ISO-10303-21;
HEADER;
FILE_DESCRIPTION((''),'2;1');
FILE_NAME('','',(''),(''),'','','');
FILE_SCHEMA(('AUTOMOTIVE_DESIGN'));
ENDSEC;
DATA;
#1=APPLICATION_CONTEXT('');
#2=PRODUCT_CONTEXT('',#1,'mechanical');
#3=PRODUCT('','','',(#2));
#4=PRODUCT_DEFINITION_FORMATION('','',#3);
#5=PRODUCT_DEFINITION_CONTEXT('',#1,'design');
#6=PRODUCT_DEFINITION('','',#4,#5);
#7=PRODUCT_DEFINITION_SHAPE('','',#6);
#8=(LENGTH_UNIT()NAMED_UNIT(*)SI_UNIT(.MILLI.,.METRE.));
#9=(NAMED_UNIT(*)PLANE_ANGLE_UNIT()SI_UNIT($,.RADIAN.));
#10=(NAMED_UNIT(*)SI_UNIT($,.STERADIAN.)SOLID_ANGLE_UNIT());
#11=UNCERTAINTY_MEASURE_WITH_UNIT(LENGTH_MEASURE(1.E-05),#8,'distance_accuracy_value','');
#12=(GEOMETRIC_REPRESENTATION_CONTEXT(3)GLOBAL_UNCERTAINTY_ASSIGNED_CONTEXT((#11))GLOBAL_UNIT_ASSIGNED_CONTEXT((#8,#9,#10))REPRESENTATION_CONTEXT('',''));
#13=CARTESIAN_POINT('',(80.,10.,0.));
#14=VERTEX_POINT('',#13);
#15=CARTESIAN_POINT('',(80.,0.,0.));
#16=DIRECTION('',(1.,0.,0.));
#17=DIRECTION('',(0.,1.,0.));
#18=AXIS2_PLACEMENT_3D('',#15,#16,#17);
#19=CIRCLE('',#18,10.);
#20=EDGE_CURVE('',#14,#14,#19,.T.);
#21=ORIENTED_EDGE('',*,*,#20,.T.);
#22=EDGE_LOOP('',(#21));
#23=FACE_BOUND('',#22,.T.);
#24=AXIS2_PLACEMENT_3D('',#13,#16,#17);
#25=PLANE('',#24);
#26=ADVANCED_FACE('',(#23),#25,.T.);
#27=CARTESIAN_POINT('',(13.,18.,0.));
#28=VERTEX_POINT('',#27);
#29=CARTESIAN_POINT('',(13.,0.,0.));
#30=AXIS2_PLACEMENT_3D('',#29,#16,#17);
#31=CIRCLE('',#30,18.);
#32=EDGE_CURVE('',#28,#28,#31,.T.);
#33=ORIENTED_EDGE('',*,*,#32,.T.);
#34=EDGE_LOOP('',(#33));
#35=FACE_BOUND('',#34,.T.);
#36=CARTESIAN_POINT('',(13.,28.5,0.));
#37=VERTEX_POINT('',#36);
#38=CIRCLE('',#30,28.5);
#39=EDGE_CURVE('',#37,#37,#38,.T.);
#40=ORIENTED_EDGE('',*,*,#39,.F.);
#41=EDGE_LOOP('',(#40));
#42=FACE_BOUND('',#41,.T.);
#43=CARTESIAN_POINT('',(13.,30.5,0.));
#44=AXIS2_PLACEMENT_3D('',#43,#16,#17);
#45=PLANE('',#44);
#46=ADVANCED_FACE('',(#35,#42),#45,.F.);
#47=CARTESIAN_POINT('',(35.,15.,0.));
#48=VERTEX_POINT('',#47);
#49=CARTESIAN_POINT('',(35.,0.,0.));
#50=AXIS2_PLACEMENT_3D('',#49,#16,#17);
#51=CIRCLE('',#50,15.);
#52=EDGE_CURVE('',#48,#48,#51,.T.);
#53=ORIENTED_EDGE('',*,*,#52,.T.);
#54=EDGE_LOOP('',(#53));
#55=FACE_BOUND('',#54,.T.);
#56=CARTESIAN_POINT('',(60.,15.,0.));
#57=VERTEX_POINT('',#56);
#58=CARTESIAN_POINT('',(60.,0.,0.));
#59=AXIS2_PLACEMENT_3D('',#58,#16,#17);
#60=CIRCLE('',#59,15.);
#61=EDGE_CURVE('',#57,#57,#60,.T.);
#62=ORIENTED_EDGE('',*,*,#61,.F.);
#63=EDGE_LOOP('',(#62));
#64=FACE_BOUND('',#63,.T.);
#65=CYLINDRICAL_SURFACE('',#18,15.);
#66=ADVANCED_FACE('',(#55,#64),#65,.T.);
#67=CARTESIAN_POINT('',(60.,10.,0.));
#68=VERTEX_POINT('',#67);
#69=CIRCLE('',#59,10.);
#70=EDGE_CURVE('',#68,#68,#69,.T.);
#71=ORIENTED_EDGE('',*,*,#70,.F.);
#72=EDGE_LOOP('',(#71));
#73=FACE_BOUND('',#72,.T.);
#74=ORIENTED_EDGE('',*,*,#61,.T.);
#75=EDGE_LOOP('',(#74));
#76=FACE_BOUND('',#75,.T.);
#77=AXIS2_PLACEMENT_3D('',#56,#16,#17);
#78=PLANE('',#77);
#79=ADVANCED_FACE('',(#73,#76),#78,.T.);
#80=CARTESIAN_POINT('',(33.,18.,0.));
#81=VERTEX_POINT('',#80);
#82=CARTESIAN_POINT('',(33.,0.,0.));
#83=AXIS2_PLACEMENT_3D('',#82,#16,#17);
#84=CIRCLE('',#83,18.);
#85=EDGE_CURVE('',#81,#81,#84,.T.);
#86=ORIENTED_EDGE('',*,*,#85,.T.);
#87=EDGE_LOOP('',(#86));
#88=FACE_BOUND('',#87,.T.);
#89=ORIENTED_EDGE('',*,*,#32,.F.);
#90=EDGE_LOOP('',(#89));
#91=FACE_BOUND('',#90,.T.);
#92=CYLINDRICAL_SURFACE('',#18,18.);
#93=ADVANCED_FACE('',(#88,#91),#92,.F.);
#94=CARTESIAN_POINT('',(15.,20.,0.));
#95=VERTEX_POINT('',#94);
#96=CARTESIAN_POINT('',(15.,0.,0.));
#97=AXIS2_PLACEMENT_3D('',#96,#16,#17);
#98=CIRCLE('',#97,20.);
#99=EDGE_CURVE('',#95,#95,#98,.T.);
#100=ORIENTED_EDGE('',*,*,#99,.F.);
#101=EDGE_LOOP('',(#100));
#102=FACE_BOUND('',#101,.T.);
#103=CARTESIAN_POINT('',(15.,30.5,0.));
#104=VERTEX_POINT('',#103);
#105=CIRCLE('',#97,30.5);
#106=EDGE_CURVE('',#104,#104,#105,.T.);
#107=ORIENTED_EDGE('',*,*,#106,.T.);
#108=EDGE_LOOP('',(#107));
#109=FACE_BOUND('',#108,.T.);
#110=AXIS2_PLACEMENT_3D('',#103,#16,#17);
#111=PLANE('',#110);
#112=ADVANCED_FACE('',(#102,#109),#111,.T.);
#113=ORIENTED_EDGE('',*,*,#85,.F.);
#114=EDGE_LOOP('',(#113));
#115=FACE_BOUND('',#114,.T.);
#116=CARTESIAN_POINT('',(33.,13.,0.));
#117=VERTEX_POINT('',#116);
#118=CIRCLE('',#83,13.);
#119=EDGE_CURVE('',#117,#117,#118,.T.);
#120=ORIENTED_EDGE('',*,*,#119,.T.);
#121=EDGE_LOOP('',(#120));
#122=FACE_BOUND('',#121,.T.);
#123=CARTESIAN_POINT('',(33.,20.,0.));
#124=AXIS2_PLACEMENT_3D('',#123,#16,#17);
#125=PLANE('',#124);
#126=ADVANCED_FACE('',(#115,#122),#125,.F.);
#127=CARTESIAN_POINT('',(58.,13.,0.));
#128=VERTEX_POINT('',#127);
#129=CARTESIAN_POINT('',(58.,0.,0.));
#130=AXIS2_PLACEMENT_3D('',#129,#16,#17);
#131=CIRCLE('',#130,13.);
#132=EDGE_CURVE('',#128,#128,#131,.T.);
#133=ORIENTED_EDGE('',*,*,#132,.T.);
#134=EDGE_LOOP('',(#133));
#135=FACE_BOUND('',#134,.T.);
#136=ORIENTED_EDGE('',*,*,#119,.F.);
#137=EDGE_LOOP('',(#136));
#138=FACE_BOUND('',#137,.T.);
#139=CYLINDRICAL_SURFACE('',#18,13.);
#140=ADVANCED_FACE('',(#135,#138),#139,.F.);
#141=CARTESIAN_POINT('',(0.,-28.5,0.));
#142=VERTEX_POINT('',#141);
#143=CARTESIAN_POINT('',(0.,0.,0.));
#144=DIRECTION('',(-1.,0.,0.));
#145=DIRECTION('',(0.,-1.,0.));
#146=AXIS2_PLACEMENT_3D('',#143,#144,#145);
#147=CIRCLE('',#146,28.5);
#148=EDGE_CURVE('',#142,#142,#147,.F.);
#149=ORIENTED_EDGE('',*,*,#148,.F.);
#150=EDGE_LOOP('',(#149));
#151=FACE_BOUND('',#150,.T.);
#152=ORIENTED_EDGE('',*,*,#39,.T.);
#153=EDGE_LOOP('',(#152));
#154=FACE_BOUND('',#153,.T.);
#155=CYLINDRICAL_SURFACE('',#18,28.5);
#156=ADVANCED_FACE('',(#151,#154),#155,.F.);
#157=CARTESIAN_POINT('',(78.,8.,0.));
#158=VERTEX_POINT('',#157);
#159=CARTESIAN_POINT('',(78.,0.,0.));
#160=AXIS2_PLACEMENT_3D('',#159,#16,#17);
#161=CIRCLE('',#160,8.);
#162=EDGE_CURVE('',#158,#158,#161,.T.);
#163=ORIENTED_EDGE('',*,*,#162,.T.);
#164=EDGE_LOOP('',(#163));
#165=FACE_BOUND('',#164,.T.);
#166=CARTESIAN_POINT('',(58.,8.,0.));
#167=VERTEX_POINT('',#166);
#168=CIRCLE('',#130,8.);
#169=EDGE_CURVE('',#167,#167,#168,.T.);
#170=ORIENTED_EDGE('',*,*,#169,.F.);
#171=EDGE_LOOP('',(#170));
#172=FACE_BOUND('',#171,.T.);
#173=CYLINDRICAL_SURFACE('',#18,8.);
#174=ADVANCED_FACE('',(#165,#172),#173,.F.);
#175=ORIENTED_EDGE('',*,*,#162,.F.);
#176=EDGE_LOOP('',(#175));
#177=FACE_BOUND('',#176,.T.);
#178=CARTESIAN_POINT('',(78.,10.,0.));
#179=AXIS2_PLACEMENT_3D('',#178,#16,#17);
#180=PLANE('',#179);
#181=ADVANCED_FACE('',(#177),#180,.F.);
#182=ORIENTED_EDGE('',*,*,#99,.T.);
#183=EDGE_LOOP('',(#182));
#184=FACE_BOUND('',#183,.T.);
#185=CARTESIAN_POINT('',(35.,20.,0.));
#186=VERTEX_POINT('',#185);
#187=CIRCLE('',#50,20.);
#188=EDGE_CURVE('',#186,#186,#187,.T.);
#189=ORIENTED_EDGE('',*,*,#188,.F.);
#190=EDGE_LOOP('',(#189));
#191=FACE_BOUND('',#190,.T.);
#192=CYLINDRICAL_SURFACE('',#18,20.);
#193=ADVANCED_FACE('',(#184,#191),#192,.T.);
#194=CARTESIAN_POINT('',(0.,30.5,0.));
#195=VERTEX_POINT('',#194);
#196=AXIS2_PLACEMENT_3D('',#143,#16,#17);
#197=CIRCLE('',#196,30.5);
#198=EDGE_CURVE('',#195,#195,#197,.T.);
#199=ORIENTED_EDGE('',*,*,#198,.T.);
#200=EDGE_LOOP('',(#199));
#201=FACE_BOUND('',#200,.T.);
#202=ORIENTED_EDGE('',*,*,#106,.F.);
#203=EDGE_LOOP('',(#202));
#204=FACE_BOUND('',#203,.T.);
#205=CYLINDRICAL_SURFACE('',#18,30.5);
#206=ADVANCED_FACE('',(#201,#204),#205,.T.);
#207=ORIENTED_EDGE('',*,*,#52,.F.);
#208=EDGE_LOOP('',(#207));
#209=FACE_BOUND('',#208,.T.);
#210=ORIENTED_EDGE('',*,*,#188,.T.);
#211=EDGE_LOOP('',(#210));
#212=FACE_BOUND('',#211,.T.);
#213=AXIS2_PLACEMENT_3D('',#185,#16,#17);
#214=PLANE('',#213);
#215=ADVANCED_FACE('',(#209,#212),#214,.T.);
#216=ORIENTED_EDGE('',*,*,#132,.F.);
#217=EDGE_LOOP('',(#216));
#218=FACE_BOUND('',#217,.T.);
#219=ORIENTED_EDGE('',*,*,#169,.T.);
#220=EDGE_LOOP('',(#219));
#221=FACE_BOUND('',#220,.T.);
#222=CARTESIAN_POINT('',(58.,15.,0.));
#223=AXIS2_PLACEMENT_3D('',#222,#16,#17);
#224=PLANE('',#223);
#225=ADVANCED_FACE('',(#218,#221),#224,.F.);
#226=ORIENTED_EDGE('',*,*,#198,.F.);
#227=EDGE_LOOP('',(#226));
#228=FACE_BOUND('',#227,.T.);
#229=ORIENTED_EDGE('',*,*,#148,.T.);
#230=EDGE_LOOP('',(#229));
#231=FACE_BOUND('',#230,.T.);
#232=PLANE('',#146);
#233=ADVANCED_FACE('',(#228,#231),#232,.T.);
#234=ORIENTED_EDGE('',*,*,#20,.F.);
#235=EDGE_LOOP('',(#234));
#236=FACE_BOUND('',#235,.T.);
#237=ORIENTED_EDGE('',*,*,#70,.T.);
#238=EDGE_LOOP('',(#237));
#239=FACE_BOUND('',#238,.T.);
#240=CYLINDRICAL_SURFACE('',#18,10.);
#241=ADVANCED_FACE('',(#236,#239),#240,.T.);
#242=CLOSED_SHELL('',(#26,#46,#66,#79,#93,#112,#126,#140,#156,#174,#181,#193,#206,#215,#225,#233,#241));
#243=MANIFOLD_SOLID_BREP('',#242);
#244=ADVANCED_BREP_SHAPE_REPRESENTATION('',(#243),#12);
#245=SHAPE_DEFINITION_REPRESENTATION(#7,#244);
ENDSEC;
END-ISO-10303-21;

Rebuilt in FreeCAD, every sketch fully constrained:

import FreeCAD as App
import Part
import Sketcher
from FreeCAD import Vector
Q = App.Units.Quantity


def faces_at(feature, points):
    """Names of the faces that lie closest to the given points."""
    faces = feature.Shape.Faces
    near = lambda p: min(range(len(faces)), key=lambda i: faces[i].distToShape(Part.Vertex(*p))[0])
    return sorted({f"Face{near(p) + 1}" for p in points})

doc = App.newDocument("Part")
body = doc.addObject("PartDesign::Body", "Body")

# Sketch on XY plane
sketch1 = body.newObject("Sketcher::SketchObject", "Sketch")
sketch1.AttachmentSupport = (doc.getObject("XY_Plane"), [""])
sketch1.MapMode = "FlatFace"
sketch1.addGeometry([
    Part.LineSegment(Vector(0, 30, 0), Vector(0, 0, 0)),  # 0
    Part.LineSegment(Vector(0, 0, 0), Vector(80, 0, 0)),  # 1
    Part.LineSegment(Vector(80, 0, 0), Vector(80, 10, 0)),  # 2
    Part.LineSegment(Vector(80, 10, 0), Vector(60, 10, 0)),  # 3
    Part.LineSegment(Vector(60, 10, 0), Vector(60, 15, 0)),  # 4
    Part.LineSegment(Vector(60, 15, 0), Vector(35, 15, 0)),  # 5
    Part.LineSegment(Vector(35, 15, 0), Vector(35, 20, 0)),  # 6
    Part.LineSegment(Vector(35, 20, 0), Vector(15, 20, 0)),  # 7
    Part.LineSegment(Vector(15, 20, 0), Vector(15, 30, 0)),  # 8
    Part.LineSegment(Vector(15, 30, 0), Vector(0, 30, 0)),  # 9
], False)
sketch1.addConstraint([
    Sketcher.Constraint("Coincident", 0, 2, 1, 1),
    Sketcher.Constraint("Coincident", 1, 2, 2, 1),
    Sketcher.Constraint("Coincident", 2, 2, 3, 1),
    Sketcher.Constraint("Coincident", 3, 2, 4, 1),
    Sketcher.Constraint("Coincident", 4, 2, 5, 1),
    Sketcher.Constraint("Coincident", 5, 2, 6, 1),
    Sketcher.Constraint("Coincident", 6, 2, 7, 1),
    Sketcher.Constraint("Coincident", 7, 2, 8, 1),
    Sketcher.Constraint("Coincident", 8, 2, 9, 1),
    Sketcher.Constraint("Coincident", 9, 2, 0, 1),
    Sketcher.Constraint("Vertical", 0),
    Sketcher.Constraint("Horizontal", 1),
    Sketcher.Constraint("Vertical", 2),
    Sketcher.Constraint("Horizontal", 3),
    Sketcher.Constraint("Vertical", 4),
    Sketcher.Constraint("Horizontal", 5),
    Sketcher.Constraint("Vertical", 6),
    Sketcher.Constraint("Horizontal", 7),
    Sketcher.Constraint("Vertical", 8),
    Sketcher.Constraint("Horizontal", 9),
    Sketcher.Constraint("Coincident", 0, 2, -1, 1),
    Sketcher.Constraint("Equal", 3, 7),
    Sketcher.Constraint("Equal", 4, 6),
    Sketcher.Constraint("DistanceX", 1, 1, 1, 2, Q("80 mm")),
    Sketcher.Constraint("DistanceX", 3, 2, 3, 1, Q("20 mm")),
    Sketcher.Constraint("DistanceX", 5, 2, 5, 1, Q("25 mm")),
    Sketcher.Constraint("DistanceY", 2, 1, 2, 2, Q("10 mm")),
    Sketcher.Constraint("DistanceY", 4, 1, 4, 2, Q("5 mm")),
    Sketcher.Constraint("DistanceY", 0, 2, 0, 1, Q("30.5 mm")),
])
revolution = body.newObject("PartDesign::Revolution", "Revolution")
revolution.Profile = sketch1
revolution.ReferenceAxis = (sketch1, ["H_Axis"])
revolution.Angle = 360
doc.recompute()

thickness = body.newObject("PartDesign::Thickness", "Thickness")
thickness.Base = (revolution, faces_at(revolution, [(0, 0, 0)]))
thickness.Value = 2
thickness.Reversed = True
thickness.Join = "Intersection"

doc.recompute()
